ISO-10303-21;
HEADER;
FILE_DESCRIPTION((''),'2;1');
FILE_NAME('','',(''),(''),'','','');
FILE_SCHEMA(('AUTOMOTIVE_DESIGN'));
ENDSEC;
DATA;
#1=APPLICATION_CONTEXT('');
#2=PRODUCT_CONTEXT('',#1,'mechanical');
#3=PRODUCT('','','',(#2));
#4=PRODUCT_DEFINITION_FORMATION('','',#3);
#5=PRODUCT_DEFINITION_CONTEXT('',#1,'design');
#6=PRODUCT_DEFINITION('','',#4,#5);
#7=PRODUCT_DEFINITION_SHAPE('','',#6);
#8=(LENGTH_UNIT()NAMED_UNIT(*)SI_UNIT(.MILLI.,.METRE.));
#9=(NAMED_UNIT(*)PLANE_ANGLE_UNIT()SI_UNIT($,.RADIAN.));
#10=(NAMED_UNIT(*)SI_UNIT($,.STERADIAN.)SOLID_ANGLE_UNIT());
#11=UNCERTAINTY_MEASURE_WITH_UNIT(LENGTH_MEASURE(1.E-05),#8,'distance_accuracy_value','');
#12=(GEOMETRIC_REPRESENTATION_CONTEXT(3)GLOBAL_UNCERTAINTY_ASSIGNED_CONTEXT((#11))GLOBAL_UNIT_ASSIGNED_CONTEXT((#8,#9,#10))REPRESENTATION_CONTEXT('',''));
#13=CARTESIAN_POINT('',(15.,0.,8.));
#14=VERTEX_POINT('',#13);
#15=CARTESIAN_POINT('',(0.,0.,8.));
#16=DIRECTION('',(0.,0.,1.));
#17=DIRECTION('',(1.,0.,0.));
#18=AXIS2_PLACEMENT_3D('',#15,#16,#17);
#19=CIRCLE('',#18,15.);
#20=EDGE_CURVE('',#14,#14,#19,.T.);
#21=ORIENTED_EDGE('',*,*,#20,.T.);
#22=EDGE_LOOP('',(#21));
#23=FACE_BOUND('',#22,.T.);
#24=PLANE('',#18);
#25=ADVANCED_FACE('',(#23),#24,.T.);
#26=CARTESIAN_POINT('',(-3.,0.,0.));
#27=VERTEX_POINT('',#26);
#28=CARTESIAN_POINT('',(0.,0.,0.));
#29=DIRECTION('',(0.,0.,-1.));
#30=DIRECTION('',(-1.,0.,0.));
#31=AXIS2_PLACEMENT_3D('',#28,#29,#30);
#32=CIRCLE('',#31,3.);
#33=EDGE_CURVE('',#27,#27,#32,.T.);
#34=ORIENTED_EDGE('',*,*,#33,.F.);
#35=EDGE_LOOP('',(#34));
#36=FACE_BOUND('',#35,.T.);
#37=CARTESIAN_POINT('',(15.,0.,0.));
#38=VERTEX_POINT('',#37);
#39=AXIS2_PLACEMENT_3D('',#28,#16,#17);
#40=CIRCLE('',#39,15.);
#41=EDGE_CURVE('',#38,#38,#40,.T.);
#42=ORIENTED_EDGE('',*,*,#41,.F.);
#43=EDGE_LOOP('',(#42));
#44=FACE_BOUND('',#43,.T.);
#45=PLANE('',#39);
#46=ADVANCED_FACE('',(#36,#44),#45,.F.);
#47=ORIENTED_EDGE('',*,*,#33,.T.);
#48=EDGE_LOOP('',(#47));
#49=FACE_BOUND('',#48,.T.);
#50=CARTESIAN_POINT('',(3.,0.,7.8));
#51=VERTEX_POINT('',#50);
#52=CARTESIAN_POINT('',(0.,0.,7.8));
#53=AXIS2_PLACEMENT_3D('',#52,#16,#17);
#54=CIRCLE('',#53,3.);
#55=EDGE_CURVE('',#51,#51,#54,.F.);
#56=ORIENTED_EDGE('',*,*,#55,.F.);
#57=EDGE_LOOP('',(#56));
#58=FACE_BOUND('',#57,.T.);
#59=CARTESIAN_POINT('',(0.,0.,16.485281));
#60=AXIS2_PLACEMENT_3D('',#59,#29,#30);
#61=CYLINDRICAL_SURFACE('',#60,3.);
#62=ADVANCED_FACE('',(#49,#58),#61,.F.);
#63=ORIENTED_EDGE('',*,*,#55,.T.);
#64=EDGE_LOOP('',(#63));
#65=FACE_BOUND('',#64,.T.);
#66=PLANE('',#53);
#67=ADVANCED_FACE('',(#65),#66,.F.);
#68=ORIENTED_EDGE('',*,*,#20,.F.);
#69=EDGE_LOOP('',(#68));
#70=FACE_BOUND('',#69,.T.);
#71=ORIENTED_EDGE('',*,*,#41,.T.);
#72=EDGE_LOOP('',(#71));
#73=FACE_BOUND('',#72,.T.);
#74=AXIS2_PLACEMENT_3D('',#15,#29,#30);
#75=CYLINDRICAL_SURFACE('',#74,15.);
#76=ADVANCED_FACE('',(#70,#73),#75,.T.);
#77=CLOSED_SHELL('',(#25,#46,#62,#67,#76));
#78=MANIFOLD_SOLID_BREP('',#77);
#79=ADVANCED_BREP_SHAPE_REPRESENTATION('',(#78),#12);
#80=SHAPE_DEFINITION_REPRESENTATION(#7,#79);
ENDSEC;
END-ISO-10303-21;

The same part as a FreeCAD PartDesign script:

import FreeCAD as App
import Part
import Sketcher
from FreeCAD import Vector
Q = App.Units.Quantity

doc = App.newDocument("Part")
params = doc.addObject("Spreadsheet::Sheet", "Params")
for row, (alias, value) in enumerate([
    ("sketch1_diameter", "30 mm"),
    ("pad1_length", "8 mm"),
    ("sketch2_diameter", "6 mm"),
    ("pocket1_length", "7.8 mm"),
], start=1):
    params.set(f"A{row}", alias)
    params.set(f"B{row}", "=" + value)
    params.setAlias(f"B{row}", alias)

body = doc.addObject("PartDesign::Body", "Body")

# Sketch on XY plane
sketch1 = body.newObject("Sketcher::SketchObject", "Sketch")
sketch1.AttachmentSupport = (doc.getObject("XY_Plane"), [""])
sketch1.MapMode = "FlatFace"
sketch1.addGeometry(Part.Circle(Vector(0, 0, 0), Vector(0, 0, 1), 15), False)
sketch1.addConstraint([
    Sketcher.Constraint("Coincident", 0, 3, -1, 1),
    Sketcher.Constraint("Diameter", 0, Q("30 mm")),
])
sketch1.setExpression("Constraints[1]", "Params.sketch1_diameter")
pad1 = body.newObject("PartDesign::Pad", "Pad")
pad1.Profile = sketch1
pad1.setExpression("Length", "Params.pad1_length")

# Sketch on XY plane
sketch2 = body.newObject("Sketcher::SketchObject", "Sketch001")
sketch2.AttachmentSupport = (doc.getObject("XY_Plane"), [""])
sketch2.MapMode = "FlatFace"
sketch2.addGeometry(Part.Circle(Vector(0, 0, 0), Vector(0, 0, 1), 3), False)
sketch2.addConstraint([
    Sketcher.Constraint("Coincident", 0, 3, -1, 1),
    Sketcher.Constraint("Diameter", 0, Q("6 mm")),
])
sketch2.setExpression("Constraints[1]", "Params.sketch2_diameter")
pocket1 = body.newObject("PartDesign::Pocket", "Pocket")
pocket1.Profile = sketch2
pocket1.setExpression("Length", "Params.pocket1_length")
pocket1.Reversed = True

doc.recompute()
